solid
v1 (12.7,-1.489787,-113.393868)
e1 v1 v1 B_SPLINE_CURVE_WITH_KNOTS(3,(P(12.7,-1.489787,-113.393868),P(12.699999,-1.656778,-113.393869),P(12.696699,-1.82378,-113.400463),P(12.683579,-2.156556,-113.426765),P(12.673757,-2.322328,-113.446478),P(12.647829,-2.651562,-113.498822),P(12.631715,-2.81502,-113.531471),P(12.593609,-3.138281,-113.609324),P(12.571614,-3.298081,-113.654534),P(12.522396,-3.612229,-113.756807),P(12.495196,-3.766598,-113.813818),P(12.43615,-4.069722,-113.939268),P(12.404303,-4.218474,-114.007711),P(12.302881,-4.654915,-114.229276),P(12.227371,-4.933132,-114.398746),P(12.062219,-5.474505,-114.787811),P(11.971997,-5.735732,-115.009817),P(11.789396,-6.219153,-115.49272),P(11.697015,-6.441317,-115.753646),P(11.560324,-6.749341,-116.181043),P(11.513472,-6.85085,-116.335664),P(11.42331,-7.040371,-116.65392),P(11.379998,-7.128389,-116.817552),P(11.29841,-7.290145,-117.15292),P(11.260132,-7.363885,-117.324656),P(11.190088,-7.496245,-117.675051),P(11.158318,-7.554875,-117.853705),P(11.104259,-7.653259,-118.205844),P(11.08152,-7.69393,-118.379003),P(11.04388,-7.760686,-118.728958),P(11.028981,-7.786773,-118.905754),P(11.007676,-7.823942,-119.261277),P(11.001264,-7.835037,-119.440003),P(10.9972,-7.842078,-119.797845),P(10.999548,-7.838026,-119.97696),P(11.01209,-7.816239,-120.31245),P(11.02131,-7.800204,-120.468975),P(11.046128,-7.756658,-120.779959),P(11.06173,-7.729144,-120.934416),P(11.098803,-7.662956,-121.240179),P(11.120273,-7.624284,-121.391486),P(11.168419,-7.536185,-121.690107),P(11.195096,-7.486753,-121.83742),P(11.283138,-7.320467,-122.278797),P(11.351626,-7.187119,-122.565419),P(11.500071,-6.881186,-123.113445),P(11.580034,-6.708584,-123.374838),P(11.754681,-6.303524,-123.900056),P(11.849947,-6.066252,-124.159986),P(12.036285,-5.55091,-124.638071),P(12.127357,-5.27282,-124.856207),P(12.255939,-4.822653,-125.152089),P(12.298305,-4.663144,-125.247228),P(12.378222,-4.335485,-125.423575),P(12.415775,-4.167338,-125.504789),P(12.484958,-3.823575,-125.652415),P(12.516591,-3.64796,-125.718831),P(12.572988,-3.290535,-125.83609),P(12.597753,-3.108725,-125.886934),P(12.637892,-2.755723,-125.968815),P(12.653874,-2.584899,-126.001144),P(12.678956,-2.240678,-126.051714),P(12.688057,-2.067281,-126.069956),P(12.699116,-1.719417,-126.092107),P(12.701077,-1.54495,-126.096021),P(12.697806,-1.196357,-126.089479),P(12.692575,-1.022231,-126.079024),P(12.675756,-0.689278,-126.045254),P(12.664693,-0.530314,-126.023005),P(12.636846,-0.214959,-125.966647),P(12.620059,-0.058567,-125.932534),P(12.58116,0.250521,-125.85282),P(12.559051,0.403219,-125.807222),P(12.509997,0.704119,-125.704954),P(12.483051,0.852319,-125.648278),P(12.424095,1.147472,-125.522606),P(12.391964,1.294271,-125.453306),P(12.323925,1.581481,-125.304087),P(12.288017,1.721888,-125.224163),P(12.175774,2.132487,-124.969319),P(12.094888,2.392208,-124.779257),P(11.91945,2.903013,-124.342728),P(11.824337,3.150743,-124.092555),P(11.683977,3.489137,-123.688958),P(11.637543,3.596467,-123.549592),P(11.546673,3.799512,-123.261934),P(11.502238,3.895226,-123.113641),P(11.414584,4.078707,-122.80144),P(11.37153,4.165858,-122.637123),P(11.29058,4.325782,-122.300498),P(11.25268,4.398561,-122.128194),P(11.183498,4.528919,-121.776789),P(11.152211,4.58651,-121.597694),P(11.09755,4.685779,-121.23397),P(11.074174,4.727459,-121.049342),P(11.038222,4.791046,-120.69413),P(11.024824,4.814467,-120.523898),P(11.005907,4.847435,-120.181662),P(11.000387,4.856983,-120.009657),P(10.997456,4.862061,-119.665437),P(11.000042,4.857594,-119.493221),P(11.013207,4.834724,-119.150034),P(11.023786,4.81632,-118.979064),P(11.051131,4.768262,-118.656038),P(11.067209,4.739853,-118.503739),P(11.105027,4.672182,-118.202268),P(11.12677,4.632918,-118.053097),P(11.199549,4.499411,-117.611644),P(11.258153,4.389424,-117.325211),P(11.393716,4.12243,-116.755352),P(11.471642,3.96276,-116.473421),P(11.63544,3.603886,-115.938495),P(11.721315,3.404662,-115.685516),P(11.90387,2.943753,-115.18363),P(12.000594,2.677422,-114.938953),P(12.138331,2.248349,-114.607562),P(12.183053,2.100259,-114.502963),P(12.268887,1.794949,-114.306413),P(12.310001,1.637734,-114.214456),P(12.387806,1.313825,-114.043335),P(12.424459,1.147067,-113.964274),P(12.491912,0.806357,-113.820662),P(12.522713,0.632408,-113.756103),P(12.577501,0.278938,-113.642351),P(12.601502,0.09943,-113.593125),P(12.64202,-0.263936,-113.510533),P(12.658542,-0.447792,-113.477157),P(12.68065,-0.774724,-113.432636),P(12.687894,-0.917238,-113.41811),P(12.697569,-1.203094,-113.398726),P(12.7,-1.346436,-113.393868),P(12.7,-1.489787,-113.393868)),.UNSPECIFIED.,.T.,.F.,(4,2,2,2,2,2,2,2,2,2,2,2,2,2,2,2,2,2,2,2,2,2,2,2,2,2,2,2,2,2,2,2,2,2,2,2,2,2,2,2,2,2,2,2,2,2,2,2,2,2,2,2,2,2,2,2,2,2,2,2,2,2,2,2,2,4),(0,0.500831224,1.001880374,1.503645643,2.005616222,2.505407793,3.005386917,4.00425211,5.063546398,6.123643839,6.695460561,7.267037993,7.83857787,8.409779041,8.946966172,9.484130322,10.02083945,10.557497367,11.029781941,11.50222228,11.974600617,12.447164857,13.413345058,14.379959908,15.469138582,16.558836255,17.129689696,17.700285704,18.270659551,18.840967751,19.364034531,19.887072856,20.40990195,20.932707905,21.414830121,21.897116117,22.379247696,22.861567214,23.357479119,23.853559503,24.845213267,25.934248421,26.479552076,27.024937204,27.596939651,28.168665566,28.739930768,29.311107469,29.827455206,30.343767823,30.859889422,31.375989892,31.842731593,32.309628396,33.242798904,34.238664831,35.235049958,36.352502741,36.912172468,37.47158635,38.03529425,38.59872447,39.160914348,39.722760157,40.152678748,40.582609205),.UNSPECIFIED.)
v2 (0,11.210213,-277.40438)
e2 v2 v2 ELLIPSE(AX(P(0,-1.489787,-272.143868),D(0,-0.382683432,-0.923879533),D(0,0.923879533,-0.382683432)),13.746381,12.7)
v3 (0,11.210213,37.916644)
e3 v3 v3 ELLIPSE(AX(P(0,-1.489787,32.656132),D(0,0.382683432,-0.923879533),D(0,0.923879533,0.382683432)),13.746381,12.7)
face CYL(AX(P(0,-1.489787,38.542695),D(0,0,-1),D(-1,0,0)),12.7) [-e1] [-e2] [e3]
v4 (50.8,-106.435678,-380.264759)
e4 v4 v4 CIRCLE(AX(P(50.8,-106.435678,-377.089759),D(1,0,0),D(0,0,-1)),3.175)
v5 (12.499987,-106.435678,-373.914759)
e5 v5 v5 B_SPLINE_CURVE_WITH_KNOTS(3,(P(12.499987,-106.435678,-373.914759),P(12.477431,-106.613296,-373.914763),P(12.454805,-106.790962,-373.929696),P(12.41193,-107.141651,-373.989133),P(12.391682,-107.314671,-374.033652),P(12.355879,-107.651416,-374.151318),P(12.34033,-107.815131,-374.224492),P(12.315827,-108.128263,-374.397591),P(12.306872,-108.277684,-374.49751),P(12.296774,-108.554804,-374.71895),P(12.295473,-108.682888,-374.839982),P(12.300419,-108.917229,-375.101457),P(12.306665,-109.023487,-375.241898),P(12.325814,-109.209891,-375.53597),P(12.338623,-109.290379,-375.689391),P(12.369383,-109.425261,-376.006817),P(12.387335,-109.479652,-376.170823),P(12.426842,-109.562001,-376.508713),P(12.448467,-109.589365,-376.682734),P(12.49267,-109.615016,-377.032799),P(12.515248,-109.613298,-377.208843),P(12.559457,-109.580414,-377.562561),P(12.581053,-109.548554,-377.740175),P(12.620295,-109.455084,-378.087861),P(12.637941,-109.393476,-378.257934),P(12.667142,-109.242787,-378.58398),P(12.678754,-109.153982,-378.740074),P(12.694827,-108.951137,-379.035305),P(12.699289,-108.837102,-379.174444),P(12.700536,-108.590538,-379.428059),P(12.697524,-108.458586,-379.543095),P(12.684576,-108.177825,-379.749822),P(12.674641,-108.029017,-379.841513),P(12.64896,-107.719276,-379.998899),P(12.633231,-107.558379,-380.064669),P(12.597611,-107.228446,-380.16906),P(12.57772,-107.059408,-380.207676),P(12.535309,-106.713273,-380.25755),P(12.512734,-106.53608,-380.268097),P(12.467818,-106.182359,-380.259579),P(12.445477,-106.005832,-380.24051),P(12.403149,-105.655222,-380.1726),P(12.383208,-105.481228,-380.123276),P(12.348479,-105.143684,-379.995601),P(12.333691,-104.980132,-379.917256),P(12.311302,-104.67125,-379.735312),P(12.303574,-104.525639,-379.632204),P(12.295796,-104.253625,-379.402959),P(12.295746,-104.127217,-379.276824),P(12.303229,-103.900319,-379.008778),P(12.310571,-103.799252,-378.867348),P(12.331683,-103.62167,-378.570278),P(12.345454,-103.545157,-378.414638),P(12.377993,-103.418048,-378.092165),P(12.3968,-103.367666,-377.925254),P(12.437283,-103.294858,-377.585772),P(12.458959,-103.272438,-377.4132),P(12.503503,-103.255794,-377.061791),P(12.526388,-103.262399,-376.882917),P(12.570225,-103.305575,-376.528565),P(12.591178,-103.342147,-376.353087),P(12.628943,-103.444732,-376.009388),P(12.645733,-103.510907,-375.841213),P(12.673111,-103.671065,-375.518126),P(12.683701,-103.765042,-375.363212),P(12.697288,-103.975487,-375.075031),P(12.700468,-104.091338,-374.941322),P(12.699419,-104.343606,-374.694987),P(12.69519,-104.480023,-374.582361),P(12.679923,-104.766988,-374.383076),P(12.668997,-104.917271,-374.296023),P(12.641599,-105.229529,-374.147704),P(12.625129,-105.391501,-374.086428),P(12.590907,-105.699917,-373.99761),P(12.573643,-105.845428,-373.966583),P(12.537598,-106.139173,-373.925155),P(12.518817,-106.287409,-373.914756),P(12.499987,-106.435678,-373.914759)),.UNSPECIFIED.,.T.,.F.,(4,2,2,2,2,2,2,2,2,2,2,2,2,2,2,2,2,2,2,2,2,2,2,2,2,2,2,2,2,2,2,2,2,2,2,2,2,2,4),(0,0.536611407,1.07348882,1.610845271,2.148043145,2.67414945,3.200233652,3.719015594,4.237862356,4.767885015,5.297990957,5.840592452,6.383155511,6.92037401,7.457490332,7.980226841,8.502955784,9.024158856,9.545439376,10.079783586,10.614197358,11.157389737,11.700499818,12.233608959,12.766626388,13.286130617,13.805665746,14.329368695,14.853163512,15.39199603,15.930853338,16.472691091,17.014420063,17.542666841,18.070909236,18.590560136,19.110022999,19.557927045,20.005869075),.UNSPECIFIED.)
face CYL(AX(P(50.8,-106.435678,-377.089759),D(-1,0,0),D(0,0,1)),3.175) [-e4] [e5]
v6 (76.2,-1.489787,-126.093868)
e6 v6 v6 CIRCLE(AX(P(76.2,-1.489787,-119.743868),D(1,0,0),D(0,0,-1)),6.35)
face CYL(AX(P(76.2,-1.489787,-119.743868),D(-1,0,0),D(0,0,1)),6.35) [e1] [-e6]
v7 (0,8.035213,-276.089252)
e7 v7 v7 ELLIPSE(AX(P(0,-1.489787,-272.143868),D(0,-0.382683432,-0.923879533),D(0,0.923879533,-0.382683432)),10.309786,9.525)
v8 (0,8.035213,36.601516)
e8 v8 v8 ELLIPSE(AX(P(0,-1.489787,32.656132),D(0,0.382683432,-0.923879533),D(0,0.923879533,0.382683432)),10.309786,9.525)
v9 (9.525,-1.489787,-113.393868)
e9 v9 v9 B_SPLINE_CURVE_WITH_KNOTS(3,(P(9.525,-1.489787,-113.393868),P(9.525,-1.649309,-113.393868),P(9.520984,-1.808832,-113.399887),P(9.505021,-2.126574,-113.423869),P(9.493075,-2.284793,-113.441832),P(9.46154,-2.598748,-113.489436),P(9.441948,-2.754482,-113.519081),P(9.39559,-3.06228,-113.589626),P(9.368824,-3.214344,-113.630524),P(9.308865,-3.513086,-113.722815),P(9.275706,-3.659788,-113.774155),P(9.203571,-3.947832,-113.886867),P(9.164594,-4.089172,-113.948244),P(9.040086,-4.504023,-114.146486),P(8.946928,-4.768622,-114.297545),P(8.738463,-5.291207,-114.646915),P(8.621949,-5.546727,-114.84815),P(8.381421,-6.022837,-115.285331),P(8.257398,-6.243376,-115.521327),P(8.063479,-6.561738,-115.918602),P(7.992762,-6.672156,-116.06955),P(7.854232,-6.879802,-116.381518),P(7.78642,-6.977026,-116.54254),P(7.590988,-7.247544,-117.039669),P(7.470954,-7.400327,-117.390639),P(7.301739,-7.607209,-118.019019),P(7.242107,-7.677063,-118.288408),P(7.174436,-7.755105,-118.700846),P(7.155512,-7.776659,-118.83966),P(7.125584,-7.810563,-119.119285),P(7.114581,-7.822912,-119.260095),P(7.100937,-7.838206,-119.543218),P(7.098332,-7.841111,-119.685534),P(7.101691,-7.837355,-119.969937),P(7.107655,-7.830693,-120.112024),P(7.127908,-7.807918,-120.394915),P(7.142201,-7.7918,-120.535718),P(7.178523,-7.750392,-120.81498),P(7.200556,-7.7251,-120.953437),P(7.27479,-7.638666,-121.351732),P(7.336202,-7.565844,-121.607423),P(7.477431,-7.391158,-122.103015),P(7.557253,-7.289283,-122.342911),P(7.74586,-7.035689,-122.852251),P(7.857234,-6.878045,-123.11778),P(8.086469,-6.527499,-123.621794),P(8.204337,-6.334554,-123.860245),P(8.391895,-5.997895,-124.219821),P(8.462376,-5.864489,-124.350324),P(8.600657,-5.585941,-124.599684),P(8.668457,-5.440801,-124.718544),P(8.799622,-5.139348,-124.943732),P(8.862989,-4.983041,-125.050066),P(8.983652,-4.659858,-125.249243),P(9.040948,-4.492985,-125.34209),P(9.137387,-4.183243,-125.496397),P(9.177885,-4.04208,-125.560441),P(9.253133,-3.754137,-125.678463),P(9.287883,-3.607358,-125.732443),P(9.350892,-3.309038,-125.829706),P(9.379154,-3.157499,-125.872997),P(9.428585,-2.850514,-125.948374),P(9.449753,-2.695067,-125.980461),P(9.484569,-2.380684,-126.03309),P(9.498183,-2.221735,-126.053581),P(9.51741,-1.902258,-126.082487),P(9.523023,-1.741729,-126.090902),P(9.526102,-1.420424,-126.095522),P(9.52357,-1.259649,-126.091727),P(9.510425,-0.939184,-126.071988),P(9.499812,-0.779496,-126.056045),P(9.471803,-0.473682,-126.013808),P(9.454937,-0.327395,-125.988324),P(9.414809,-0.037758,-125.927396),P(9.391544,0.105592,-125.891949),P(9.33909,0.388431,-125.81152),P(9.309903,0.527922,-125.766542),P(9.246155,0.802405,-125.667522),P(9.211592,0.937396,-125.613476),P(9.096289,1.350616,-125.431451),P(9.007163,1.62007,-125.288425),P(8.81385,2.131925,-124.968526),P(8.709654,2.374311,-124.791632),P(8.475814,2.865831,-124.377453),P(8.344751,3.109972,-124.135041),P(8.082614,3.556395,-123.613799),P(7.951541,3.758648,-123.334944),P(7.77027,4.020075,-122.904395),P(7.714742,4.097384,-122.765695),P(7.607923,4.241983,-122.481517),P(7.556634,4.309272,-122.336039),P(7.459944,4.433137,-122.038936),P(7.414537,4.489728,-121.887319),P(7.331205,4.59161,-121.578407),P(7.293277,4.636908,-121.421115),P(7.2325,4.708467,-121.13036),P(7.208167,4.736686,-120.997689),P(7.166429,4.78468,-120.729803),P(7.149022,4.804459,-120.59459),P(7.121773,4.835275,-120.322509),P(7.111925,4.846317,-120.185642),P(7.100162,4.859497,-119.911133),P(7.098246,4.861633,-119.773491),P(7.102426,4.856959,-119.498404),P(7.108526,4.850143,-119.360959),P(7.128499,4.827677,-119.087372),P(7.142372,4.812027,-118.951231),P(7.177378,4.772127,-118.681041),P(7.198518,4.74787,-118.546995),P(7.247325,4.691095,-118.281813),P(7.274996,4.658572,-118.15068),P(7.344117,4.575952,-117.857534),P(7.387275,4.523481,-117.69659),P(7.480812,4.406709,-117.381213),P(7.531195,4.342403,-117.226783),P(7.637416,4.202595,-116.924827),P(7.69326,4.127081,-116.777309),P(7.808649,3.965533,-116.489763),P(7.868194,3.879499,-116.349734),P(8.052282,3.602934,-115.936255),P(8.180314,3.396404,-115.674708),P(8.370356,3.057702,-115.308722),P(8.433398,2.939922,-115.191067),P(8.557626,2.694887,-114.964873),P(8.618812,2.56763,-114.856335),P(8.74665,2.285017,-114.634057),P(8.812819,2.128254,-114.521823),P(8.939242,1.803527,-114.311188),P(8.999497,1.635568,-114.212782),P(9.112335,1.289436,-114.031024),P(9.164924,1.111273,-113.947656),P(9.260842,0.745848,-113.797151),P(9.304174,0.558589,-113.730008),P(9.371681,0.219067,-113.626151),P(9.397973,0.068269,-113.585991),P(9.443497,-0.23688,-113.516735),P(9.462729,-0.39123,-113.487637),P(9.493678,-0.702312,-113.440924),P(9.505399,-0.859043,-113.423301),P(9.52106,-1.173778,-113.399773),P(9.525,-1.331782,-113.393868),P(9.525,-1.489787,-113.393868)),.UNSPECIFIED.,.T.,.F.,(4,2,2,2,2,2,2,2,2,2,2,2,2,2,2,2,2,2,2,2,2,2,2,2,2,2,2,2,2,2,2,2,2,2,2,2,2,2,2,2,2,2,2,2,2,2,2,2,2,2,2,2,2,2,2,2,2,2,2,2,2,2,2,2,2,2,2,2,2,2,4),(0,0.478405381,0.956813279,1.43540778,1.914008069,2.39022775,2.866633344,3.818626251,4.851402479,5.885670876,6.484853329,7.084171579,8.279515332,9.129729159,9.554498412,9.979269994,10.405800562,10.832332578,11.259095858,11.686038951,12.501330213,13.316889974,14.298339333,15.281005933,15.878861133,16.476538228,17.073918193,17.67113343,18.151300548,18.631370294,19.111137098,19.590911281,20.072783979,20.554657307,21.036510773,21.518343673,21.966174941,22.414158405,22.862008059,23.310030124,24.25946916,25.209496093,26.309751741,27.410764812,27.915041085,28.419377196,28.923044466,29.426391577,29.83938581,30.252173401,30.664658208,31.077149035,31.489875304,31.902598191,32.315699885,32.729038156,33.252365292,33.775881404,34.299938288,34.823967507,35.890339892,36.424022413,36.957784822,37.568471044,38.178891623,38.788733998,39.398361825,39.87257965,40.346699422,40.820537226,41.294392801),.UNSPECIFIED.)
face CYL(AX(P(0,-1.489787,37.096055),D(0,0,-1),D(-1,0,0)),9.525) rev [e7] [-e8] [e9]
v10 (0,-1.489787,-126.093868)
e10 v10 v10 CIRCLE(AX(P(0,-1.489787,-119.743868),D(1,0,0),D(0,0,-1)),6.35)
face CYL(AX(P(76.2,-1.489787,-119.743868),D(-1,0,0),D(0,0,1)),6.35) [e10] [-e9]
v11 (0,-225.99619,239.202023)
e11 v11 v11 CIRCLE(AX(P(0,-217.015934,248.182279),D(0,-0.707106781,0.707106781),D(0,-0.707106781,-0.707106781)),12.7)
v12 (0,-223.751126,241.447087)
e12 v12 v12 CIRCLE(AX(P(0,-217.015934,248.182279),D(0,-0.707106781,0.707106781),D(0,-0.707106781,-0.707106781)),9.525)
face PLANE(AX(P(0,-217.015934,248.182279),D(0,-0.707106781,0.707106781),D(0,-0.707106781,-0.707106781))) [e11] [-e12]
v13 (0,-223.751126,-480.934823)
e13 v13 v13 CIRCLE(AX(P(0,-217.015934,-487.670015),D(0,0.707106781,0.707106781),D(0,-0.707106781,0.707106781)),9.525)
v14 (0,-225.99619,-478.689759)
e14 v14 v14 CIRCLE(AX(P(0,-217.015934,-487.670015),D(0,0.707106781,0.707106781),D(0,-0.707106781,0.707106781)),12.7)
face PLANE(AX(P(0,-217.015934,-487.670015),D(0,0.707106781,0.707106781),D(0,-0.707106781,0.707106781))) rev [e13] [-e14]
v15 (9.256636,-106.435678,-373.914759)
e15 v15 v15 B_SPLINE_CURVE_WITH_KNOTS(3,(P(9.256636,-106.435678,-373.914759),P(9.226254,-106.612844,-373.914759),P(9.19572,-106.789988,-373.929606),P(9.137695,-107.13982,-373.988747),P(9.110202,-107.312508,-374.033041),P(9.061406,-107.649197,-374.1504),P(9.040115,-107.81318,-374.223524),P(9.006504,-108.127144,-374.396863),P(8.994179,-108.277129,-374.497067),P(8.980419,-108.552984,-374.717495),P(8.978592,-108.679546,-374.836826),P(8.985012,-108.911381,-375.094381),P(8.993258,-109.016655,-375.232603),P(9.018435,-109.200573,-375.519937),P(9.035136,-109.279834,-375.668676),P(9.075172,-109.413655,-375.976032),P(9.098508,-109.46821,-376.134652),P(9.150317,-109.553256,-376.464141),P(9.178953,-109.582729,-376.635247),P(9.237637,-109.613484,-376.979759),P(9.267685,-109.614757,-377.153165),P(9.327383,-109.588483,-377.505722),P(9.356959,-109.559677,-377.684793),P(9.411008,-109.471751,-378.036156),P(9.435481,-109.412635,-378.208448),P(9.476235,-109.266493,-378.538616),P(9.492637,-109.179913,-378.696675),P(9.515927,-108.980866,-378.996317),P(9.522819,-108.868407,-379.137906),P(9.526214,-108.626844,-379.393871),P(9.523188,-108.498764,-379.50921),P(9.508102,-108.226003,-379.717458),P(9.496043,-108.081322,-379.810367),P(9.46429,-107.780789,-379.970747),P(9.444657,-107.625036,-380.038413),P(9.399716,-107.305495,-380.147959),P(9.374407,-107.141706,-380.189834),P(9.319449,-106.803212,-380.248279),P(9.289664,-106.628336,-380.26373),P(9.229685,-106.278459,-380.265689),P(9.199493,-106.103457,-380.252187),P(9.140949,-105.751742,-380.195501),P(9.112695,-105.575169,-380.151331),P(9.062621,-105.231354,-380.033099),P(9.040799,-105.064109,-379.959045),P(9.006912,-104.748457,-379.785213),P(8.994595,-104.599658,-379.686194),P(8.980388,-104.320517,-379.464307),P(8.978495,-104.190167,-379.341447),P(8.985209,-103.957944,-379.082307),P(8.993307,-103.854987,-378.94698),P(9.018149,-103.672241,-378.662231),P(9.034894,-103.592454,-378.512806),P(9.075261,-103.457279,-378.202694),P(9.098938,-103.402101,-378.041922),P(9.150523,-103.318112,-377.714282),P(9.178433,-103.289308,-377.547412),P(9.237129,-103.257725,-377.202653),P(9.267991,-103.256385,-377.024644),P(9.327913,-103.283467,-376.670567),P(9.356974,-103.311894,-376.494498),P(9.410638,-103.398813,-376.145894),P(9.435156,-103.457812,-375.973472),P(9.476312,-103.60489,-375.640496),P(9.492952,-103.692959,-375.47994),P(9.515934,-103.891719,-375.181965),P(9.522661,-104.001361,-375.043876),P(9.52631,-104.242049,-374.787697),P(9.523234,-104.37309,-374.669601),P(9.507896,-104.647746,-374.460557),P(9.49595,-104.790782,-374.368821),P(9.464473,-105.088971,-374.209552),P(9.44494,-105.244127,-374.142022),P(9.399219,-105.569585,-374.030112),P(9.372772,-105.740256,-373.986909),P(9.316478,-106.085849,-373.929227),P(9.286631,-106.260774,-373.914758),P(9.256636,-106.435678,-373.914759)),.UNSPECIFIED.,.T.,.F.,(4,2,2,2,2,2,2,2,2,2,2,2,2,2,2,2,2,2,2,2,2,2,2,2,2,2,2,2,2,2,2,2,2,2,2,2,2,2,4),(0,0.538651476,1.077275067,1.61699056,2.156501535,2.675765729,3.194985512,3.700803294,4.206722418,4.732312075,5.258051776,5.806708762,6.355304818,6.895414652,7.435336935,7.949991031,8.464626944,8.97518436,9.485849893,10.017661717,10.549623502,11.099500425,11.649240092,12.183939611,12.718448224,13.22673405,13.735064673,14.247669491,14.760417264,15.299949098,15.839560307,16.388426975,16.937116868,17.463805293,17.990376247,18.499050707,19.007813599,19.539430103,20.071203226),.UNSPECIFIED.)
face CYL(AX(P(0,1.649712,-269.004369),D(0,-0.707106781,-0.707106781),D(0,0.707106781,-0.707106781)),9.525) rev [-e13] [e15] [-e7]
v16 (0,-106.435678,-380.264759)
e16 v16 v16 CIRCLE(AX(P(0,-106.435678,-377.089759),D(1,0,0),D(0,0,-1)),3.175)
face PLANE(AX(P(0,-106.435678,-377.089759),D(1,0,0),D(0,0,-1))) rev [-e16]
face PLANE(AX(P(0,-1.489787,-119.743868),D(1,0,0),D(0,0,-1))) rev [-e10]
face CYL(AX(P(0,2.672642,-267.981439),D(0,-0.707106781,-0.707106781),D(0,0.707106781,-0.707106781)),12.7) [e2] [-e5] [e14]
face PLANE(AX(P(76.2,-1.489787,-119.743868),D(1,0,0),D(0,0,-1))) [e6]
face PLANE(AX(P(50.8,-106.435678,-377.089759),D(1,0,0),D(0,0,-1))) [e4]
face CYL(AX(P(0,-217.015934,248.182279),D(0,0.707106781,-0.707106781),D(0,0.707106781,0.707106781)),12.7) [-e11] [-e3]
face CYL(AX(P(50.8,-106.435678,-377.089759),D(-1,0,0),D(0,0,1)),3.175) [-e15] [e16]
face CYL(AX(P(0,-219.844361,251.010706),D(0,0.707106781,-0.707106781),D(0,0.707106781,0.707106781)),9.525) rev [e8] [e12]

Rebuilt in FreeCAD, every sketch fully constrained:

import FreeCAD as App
import Part
import Sketcher
Q = App.Units.Quantity

doc = App.newDocument("Part")
body = doc.addObject("PartDesign::Body", "Body")

sketch1 = doc.addObject("Sketcher::SketchObject", "Sketch")
body.addObject(sketch1)
sketch1.Placement = App.Placement(App.Vector(0, -217.015934, 248.182279), App.Rotation(App.Vector(0, 0.707106781, 0.707106781), App.Vector(0.999999999, 0, 0), App.Vector(0, 0.707106781, -0.707106781), "ZXY"))
sketch1.addGeometry(Part.Circle(App.Vector(0, 0, 0), App.Vector(0, 0, 1), 13), False)
sketch1.addConstraint([
    Sketcher.Constraint("Coincident", 0, 3, -1, 1),
    Sketcher.Constraint("Diameter", 0, Q("1 in")),
])

sketch2 = doc.addObject("Sketcher::SketchObject", "Sketch001")
body.addObject(sketch2)
sketch2.AttachmentSupport = (doc.YZ_Plane, [""])
sketch2.MapMode = "FlatFace"
sketch2.addGeometry([
    Part.LineSegment(App.Vector(-217, 248, 0), App.Vector(-1, 33, 0)),
    Part.LineSegment(App.Vector(-1, 33, 0), App.Vector(-1, -272, 0)),
    Part.LineSegment(App.Vector(-1, -272, 0), App.Vector(-217, -488, 0)),
], False)
sketch2.addConstraint([
    Sketcher.Constraint("Coincident", 0, 2, 1, 1),
    Sketcher.Constraint("Coincident", 1, 2, 2, 1),
    Sketcher.Constraint("Vertical", 1),
    Sketcher.Constraint("Perpendicular", 0, 2),
    Sketcher.Constraint("Vertical", 0, 1, 2, 2),
    Sketcher.Constraint("Equal", 0, 2),
    Sketcher.Constraint("DistanceY", 1, 2, 1, 1, Q("12 in")),
    Sketcher.Constraint("Distance", 0, Q("12 in")),
    Sketcher.Constraint("DistanceY", -1, 1, 0, 1, 248.182279),
    Sketcher.Constraint("DistanceX", 0, 1, -1, 1, 217.015934),
])
doc.recompute()

additivepipe = doc.addObject("PartDesign::AdditivePipe", "AdditivePipe")
body.addObject(additivepipe)
additivepipe.Profile = sketch1
additivepipe.Spine = (sketch2, ["Edge1", "Edge2", "Edge3"])
additivepipe.Transition = "Right corner"

sketch3 = doc.addObject("Sketcher::SketchObject", "Sketch002")
body.addObject(sketch3)
sketch3.Placement = App.Placement(App.Vector(0, -217.015934, 248.182279), App.Rotation(App.Vector(0, 0.707106781, 0.707106781), App.Vector(0.999999999, 0, 0), App.Vector(0, 0.707106781, -0.707106781), "ZXY"))
sketch3.addGeometry(Part.Circle(App.Vector(0, 0, 0), App.Vector(0, 0, 1), 10), False)
sketch3.addConstraint([
    Sketcher.Constraint("Coincident", 0, 3, -1, 1),
    Sketcher.Constraint("Diameter", 0, Q("0.75 in")),
])

sketch4 = doc.addObject("Sketcher::SketchObject", "Sketch003")
body.addObject(sketch4)
sketch4.AttachmentSupport = (doc.YZ_Plane, [""])
sketch4.MapMode = "FlatFace"
sketch4.addGeometry([
    Part.LineSegment(App.Vector(-217, 248, 0), App.Vector(-1, 33, 0)),
    Part.LineSegment(App.Vector(-1, 33, 0), App.Vector(-1, -272, 0)),
    Part.LineSegment(App.Vector(-1, -272, 0), App.Vector(-217, -488, 0)),
], False)
sketch4.addConstraint([
    Sketcher.Constraint("Coincident", 0, 2, 1, 1),
    Sketcher.Constraint("Coincident", 1, 2, 2, 1),
    Sketcher.Constraint("Vertical", 1),
    Sketcher.Constraint("Perpendicular", 0, 2),
    Sketcher.Constraint("Vertical", 0, 1, 2, 2),
    Sketcher.Constraint("Equal", 0, 2),
    Sketcher.Constraint("DistanceY", 1, 2, 1, 1, Q("12 in")),
    Sketcher.Constraint("Distance", 0, Q("12 in")),
    Sketcher.Constraint("DistanceY", -1, 1, 0, 1, 248.182279),
    Sketcher.Constraint("DistanceX", 0, 1, -1, 1, 217.015934),
])
doc.recompute()

subtractivepipe = doc.addObject("PartDesign::SubtractivePipe", "SubtractivePipe")
body.addObject(subtractivepipe)
subtractivepipe.Profile = sketch3
subtractivepipe.Spine = (sketch4, ["Edge1", "Edge2", "Edge3"])
subtractivepipe.Transition = "Right corner"

sketch5 = doc.addObject("Sketcher::SketchObject", "Sketch004")
body.addObject(sketch5)
sketch5.AttachmentSupport = (doc.YZ_Plane, [""])
sketch5.MapMode = "FlatFace"
sketch5.addGeometry(Part.Circle(App.Vector(-1, -120, 0), App.Vector(0, 0, 1), 6), False)
sketch5.addConstraint([
    Sketcher.Constraint("Diameter", 0, Q("0.5 in")),
    Sketcher.Constraint("DistanceY", 0, 3, -1, 1, 119.743868),
    Sketcher.Constraint("DistanceX", 0, 3, -1, 1, 1.489787),
])
pad1 = doc.addObject("PartDesign::Pad", "Pad")
body.addObject(pad1)
pad1.Profile = sketch5
pad1.Length = Q("3 in")

sketch6 = doc.addObject("Sketcher::SketchObject", "Sketch005")
body.addObject(sketch6)
sketch6.AttachmentSupport = (doc.YZ_Plane, [""])
sketch6.MapMode = "FlatFace"
sketch6.addGeometry(Part.Circle(App.Vector(-106.4, -377.1, 0), App.Vector(0, 0, 1), 3.2), False)
sketch6.addConstraint([
    Sketcher.Constraint("Diameter", 0, Q("0.25 in")),
    Sketcher.Constraint("DistanceY", 0, 3, -1, 1, 377.089759),
    Sketcher.Constraint("DistanceX", 0, 3, -1, 1, 106.435678),
])
pad2 = doc.addObject("PartDesign::Pad", "Pad001")
body.addObject(pad2)
pad2.Profile = sketch6
pad2.Length = Q("2 in")

doc.recompute()
